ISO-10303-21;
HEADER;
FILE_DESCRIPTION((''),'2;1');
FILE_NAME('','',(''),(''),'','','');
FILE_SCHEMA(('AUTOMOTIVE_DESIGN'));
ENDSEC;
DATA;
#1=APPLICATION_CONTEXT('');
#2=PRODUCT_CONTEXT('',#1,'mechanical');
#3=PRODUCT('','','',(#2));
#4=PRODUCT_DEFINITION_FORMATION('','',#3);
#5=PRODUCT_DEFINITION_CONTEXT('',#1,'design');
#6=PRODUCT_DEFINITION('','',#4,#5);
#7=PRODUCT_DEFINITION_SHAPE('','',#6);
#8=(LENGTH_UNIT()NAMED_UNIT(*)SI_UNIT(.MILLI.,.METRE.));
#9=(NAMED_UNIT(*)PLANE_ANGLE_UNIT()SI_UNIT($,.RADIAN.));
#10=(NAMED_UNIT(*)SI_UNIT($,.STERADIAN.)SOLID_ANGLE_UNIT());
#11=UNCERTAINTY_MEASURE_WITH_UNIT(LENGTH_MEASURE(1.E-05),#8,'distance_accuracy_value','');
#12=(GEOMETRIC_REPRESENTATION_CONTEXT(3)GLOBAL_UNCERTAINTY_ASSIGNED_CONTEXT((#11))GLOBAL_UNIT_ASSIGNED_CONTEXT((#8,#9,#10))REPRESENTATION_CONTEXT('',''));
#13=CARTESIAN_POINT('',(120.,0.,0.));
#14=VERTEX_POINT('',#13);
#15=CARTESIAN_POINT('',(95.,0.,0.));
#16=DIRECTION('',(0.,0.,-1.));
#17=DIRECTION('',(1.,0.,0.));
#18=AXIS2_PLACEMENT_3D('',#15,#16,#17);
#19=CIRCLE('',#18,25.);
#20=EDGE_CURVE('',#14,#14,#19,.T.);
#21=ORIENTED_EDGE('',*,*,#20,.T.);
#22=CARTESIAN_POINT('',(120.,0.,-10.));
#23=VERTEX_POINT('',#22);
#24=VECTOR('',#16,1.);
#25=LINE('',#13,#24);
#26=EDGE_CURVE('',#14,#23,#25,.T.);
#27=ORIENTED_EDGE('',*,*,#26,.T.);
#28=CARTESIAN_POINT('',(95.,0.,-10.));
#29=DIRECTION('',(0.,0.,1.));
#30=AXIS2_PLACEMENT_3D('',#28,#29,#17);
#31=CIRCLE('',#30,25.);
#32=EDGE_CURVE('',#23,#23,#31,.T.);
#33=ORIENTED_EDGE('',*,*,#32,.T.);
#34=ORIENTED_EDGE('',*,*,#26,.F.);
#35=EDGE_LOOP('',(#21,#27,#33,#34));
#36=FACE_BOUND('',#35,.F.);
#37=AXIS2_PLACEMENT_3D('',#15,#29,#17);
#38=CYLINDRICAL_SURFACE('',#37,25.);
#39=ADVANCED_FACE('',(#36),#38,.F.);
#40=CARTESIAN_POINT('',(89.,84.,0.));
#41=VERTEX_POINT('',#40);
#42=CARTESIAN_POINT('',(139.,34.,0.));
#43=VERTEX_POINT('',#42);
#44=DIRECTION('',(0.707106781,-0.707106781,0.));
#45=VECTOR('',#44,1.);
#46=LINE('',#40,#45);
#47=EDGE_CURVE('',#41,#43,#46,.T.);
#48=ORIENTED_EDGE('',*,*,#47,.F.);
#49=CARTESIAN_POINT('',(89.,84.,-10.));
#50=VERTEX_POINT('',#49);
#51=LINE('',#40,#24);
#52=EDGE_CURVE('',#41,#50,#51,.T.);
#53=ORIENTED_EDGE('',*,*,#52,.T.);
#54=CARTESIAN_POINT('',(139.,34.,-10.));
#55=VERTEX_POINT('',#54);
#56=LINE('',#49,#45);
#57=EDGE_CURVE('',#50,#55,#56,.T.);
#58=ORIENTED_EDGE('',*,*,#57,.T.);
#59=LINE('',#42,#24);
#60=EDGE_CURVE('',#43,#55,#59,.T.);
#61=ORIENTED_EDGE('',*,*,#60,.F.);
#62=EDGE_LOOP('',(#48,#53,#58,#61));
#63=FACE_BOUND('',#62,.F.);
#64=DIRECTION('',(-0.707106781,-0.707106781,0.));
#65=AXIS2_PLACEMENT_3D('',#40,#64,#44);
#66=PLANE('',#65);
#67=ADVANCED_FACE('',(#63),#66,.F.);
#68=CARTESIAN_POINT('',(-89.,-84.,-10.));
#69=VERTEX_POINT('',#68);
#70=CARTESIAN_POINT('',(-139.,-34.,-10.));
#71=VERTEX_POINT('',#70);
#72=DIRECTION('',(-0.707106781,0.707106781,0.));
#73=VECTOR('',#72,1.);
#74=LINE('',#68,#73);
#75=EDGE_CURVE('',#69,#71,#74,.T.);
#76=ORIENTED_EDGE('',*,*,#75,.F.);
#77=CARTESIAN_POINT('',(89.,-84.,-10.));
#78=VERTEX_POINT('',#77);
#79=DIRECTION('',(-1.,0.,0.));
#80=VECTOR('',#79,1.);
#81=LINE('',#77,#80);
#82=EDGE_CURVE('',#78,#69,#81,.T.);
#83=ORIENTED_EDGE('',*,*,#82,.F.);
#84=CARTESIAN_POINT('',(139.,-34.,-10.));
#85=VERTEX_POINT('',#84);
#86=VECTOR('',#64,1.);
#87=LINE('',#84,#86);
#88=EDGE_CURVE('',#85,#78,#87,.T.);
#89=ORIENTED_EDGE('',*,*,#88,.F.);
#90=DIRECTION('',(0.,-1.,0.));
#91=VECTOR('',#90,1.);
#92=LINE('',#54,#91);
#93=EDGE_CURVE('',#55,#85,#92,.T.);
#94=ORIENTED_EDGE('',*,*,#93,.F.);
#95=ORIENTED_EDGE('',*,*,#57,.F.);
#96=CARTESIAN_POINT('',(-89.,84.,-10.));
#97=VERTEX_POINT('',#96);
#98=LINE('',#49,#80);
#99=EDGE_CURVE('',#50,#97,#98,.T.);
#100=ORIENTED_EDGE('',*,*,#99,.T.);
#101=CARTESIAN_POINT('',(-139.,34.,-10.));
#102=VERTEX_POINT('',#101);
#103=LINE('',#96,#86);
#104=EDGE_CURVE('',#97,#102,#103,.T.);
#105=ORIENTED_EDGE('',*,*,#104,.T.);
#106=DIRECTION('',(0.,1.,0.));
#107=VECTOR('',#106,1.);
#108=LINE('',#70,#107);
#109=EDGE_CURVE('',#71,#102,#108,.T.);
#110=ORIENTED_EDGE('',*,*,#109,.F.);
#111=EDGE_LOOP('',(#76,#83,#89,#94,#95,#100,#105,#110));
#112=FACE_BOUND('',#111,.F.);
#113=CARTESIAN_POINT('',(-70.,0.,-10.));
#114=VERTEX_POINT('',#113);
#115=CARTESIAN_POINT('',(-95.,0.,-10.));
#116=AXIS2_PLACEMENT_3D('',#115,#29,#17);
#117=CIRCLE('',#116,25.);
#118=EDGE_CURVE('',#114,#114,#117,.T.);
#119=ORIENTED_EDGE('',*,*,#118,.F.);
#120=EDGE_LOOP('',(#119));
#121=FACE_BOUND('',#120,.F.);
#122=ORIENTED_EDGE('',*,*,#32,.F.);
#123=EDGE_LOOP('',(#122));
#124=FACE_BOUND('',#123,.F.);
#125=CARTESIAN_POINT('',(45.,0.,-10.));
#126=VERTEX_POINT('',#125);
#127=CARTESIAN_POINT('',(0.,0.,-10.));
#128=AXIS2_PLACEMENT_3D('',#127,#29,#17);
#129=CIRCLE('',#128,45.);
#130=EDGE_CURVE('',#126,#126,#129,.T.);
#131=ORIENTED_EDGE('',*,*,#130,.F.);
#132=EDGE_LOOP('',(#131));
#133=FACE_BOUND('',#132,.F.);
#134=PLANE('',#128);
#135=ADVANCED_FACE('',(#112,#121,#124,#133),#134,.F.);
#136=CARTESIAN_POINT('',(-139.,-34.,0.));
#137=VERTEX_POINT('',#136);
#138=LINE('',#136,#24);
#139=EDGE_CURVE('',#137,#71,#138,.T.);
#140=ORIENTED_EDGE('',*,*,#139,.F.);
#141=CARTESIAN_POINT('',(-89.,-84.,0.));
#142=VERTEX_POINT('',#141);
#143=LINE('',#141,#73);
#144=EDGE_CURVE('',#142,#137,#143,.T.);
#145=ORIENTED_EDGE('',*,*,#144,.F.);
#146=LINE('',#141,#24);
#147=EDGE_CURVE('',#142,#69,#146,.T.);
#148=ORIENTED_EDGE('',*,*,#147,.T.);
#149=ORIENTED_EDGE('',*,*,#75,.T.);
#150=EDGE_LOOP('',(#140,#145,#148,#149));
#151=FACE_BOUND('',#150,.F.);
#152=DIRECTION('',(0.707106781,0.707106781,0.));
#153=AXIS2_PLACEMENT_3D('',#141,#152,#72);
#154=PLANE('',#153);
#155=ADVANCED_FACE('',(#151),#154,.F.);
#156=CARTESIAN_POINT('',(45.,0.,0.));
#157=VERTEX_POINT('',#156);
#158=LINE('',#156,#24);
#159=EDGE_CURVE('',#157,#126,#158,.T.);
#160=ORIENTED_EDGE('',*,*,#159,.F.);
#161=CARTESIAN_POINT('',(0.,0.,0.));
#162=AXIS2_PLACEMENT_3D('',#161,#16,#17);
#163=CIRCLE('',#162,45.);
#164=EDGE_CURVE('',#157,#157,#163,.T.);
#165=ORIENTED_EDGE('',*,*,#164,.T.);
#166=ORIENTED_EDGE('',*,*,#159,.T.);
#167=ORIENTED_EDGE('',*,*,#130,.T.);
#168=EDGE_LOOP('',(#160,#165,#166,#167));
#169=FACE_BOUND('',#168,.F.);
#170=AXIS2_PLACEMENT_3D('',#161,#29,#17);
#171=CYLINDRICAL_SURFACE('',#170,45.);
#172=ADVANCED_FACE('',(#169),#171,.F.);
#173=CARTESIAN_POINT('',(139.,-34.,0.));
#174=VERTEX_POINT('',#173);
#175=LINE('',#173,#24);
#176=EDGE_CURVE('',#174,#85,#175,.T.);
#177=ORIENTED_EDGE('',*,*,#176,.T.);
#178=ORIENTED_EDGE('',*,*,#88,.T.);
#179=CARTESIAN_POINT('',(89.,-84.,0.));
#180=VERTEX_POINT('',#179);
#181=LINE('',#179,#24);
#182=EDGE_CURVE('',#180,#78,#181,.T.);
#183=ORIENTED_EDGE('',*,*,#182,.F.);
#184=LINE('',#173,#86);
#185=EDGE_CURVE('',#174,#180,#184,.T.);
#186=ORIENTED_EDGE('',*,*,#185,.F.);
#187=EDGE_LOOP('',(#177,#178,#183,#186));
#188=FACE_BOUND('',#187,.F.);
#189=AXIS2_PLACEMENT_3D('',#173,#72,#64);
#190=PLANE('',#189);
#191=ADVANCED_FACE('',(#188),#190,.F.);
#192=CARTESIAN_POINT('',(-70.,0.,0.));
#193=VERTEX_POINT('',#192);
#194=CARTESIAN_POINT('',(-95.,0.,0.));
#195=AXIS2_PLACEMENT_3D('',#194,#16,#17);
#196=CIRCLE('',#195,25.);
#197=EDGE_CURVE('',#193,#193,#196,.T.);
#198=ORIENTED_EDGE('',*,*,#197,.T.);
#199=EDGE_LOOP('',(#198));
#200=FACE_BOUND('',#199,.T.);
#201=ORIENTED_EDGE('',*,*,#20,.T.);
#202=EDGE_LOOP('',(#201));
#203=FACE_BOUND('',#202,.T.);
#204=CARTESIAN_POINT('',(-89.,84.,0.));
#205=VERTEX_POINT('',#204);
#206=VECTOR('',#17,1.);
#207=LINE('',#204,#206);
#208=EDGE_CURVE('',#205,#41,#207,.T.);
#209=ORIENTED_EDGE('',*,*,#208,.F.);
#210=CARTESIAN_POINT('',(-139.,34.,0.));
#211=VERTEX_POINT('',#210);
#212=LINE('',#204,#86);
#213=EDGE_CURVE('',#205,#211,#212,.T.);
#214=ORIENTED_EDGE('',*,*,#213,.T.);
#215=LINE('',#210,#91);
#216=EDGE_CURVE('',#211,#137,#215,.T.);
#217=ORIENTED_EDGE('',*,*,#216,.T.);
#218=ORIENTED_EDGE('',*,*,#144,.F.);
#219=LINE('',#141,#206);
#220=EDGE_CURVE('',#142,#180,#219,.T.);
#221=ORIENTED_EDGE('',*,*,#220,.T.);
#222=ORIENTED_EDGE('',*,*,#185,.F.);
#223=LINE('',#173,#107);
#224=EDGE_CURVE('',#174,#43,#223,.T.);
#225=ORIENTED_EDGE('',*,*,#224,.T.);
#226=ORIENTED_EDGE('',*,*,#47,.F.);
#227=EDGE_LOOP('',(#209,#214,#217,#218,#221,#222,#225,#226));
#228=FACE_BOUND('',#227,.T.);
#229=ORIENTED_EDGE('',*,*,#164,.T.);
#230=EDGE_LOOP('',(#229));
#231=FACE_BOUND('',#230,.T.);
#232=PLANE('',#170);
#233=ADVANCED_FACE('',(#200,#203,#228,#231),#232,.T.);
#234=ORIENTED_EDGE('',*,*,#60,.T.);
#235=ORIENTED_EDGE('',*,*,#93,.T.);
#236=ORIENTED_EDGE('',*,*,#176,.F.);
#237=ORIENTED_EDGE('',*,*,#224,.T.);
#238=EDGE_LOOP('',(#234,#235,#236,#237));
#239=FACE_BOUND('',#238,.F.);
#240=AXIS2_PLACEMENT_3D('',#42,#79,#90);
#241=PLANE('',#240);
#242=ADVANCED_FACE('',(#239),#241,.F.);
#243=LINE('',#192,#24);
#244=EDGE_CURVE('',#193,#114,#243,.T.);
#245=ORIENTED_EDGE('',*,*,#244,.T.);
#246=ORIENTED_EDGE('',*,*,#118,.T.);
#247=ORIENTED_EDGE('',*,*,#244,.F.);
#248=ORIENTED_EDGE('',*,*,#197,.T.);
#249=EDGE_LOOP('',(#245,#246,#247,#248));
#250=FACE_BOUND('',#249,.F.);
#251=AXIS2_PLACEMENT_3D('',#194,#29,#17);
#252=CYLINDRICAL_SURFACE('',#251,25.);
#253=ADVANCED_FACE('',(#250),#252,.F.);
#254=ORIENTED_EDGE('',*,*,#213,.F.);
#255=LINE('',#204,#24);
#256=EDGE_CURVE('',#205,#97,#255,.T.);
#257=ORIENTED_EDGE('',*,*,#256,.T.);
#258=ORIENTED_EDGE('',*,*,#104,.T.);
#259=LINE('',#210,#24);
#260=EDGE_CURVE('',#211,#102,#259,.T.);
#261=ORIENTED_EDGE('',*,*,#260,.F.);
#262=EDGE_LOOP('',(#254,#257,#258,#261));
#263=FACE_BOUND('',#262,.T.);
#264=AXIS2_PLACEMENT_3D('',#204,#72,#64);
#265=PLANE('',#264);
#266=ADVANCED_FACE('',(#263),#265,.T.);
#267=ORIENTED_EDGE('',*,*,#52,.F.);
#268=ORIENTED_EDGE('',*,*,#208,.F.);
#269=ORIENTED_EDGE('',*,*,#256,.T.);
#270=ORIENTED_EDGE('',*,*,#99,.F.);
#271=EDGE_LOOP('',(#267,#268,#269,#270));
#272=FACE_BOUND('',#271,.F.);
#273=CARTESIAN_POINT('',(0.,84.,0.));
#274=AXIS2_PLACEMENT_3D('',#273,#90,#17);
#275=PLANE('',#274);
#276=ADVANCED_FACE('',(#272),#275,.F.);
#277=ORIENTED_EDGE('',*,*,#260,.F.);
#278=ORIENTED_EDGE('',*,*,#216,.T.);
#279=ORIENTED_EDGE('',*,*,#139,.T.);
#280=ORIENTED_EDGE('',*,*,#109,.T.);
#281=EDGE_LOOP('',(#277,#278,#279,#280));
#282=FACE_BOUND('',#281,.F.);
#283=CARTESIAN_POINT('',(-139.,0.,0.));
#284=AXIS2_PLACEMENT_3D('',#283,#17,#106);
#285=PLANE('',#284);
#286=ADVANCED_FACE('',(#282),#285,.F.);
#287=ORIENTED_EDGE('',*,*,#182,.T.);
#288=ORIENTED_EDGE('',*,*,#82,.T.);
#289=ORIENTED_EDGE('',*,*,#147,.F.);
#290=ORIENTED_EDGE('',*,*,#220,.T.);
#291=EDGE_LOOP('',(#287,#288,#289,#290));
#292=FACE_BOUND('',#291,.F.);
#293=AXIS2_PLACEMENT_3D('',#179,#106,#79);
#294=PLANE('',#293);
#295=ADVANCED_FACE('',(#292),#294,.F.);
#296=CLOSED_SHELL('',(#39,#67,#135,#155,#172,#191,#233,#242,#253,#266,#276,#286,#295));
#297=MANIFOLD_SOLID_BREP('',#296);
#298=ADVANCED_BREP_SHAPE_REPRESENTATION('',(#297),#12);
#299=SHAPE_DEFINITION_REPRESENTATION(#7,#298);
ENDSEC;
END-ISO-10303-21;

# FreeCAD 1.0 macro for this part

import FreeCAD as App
import Part
import Sketcher

V = App.Vector


def add_polygon(sketch, points):
    """Adds a closed chain of lines whose ends are joined by coincident constraints."""
    first, n = sketch.GeometryCount, len(points)
    for a, b in zip(points, points[1:] + points[:1]):
        sketch.addGeometry(Part.LineSegment(App.Vector(*a, 0), App.Vector(*b, 0)), False)
    for i in range(n):
        sketch.addConstraint(Sketcher.Constraint("Coincident", first + i, 2, first + (i + 1) % n, 1))

doc = App.newDocument("Part")
params = doc.addObject("Spreadsheet::Sheet", "Params")
for row, (alias, value) in enumerate([
    ("sketch1_diameter", "50 mm"),
    ("sketch1_diameter2", "90 mm"),
    ("sketch1_width", "178 mm"),
    ("pad1_length", "10 mm"),
], start=1):
    params.set(f"A{row}", alias)
    params.set(f"B{row}", "=" + value)
    params.setAlias(f"B{row}", alias)

body = doc.addObject("PartDesign::Body", "Body")

# Sketch on XY plane
sketch1 = body.newObject("Sketcher::SketchObject", "Sketch")
sketch1.AttachmentSupport = (doc.getObject("XY_Plane"), [""])
sketch1.MapMode = "FlatFace"
add_polygon(sketch1, [(89, 84), (-89, 84), (-139, 34), (-139, -34), (-89, -84), (89, -84), (139, -34), (139, 34)])  # lines 0-7
sketch1.addGeometry(Part.Circle(V(95, 0, 0), V(0, 0, 1), 25), False)  # 8
sketch1.addGeometry(Part.Circle(V(0, 0, 0), V(0, 0, 1), 45), False)  # 9
sketch1.addGeometry(Part.Circle(V(-95, 0, 0), V(0, 0, 1), 25), False)  # 10
sketch1.addConstraint([
    Sketcher.Constraint("Horizontal", 0),
    Sketcher.Constraint("Vertical", 2),
    Sketcher.Constraint("Horizontal", 4),
    Sketcher.Constraint("Vertical", 6),
    Sketcher.Constraint("Coincident", 9, 3, -1, 1),
    Sketcher.Constraint("Equal", 8, 10),
    Sketcher.Constraint("Symmetric", 8, 3, 10, 3, -1, 1),
    Sketcher.Constraint("Symmetric", 0, 2, 4, 2, -1, 1),
    Sketcher.Constraint("Symmetric", 1, 2, 5, 2, -1, 1),
    Sketcher.Constraint("PointOnObject", 8, 3, -1),
    Sketcher.Constraint("Perpendicular", 1, 3),
    Sketcher.Constraint("Perpendicular", 5, 7),
    Sketcher.Constraint("Horizontal", 2, 2, 5, 2),
    Sketcher.Constraint("Horizontal", 1, 2, 6, 2),
    Sketcher.Constraint("Vertical", 0, 2, 3, 2),
    Sketcher.Constraint("Diameter", 8, 50.0),
    Sketcher.Constraint("Diameter", 9, 90.0),
    Sketcher.Constraint("DistanceX", -1, 1, 8, 3, 95.0),
    Sketcher.Constraint("DistanceX", 1, 2, 0, 2, 50.0),
    Sketcher.Constraint("DistanceY", 3, 2, 0, 2, 168.0),
    Sketcher.Constraint("DistanceX", 0, 2, 0, 1, 178.0),
])
sketch1.setExpression("Constraints[23]", "Params.sketch1_diameter")
sketch1.setExpression("Constraints[24]", "Params.sketch1_diameter2")
sketch1.setExpression("Constraints[28]", "Params.sketch1_width")
pad1 = body.newObject("PartDesign::Pad", "Pad")
pad1.Profile = sketch1
pad1.setExpression("Length", "Params.pad1_length")
pad1.Reversed = True

doc.recompute()
